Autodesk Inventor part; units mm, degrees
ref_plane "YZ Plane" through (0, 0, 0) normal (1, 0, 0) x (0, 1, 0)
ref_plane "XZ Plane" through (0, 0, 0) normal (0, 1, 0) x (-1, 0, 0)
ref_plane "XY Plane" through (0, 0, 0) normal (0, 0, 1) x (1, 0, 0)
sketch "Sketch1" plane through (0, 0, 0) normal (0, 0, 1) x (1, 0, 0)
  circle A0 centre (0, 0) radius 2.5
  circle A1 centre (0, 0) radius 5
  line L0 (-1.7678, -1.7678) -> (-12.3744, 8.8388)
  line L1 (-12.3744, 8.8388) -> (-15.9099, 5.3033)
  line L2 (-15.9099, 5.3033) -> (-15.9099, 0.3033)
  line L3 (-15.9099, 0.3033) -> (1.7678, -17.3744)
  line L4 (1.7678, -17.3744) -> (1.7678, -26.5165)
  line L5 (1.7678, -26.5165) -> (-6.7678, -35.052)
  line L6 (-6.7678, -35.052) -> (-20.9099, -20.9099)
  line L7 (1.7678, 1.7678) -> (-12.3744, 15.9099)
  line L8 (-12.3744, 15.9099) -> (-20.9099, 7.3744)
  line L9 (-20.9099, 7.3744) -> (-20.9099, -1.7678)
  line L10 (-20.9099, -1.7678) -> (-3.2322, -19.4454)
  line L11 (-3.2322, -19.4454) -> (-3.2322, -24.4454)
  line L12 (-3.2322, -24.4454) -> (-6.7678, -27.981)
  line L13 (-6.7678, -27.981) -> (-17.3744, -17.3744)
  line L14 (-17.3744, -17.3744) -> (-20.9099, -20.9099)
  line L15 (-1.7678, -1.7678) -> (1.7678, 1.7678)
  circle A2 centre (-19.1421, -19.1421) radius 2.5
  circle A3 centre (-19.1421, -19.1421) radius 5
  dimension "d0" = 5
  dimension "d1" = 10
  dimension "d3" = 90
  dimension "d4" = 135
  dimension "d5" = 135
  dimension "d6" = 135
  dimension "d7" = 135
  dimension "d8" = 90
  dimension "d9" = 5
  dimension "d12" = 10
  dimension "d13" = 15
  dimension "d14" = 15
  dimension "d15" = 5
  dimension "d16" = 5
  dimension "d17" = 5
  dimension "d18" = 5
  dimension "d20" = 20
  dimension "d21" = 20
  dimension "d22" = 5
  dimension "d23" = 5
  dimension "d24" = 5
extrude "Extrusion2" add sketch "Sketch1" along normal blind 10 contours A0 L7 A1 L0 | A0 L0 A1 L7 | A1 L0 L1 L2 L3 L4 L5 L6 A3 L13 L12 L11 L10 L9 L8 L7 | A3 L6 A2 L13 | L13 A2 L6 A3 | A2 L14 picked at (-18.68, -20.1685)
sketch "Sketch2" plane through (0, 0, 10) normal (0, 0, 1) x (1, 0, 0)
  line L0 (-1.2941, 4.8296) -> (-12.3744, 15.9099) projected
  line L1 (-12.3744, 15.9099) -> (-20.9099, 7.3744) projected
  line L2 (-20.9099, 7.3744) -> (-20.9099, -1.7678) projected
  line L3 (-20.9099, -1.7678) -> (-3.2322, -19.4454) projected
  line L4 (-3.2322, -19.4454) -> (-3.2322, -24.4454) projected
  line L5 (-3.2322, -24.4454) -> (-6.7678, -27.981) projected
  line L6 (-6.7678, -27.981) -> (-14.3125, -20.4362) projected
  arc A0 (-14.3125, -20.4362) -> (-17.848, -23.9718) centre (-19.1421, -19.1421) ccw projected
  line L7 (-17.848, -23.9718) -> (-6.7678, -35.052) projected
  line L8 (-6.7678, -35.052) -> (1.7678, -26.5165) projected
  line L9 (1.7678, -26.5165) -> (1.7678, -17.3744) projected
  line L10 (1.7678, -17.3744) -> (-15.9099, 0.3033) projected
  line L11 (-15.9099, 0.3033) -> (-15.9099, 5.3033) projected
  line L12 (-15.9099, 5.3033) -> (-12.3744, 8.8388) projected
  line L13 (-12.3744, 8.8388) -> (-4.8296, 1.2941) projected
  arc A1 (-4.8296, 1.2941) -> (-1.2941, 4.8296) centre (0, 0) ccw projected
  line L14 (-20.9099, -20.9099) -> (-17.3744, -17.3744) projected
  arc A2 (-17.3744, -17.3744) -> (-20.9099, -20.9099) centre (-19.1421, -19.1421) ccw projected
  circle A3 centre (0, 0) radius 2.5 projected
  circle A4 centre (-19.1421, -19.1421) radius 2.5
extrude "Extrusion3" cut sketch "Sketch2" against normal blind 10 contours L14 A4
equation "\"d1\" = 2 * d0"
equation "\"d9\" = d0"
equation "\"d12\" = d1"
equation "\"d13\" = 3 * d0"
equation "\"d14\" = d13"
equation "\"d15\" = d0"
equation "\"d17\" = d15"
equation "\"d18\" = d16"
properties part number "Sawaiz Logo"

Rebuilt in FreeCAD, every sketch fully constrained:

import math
import FreeCAD as App
import Part
import Sketcher
Q = App.Units.Quantity

doc = App.newDocument("Part")
body = doc.addObject("PartDesign::Body", "Body")

sketch1 = doc.addObject("Sketcher::SketchObject", "Sketch")
body.addObject(sketch1)
sketch1.AttachmentSupport = (doc.XY_Plane, [""])
sketch1.MapMode = "FlatFace"
sketch1.addGeometry([
    Part.LineSegment(App.Vector(-1.3, 4.8, 0), App.Vector(-12.4, 15.9, 0)),
    Part.LineSegment(App.Vector(-12.4, 15.9, 0), App.Vector(-20.9, 7.4, 0)),
    Part.LineSegment(App.Vector(-20.9, 7.4, 0), App.Vector(-20.9, -1.8, 0)),
    Part.LineSegment(App.Vector(-20.9, -1.8, 0), App.Vector(-3.2, -19.4, 0)),
    Part.LineSegment(App.Vector(-3.2, -19.4, 0), App.Vector(-3.2, -24.4, 0)),
    Part.LineSegment(App.Vector(-3.2, -24.4, 0), App.Vector(-6.8, -28, 0)),
    Part.LineSegment(App.Vector(-6.8, -28, 0), App.Vector(-14.3, -20.4, 0)),
    Part.ArcOfCircle(Part.Circle(App.Vector(-19.1, -19.1, 0), App.Vector(0, 0, 1), 5), math.radians(-15), math.radians(285)),
    Part.LineSegment(App.Vector(-17.8, -24, 0), App.Vector(-6.8, -35.1, 0)),
    Part.LineSegment(App.Vector(-6.8, -35.1, 0), App.Vector(1.8, -26.5, 0)),
    Part.LineSegment(App.Vector(1.8, -26.5, 0), App.Vector(1.8, -17.4, 0)),
    Part.LineSegment(App.Vector(1.8, -17.4, 0), App.Vector(-15.9, 0.3, 0)),
    Part.LineSegment(App.Vector(-15.9, 0.3, 0), App.Vector(-15.9, 5.3, 0)),
    Part.LineSegment(App.Vector(-15.9, 5.3, 0), App.Vector(-12.4, 8.8, 0)),
    Part.LineSegment(App.Vector(-12.4, 8.8, 0), App.Vector(-4.8, 1.3, 0)),
    Part.ArcOfCircle(Part.Circle(App.Vector(0, 0, 0), App.Vector(0, 0, 1), 5), math.radians(165), math.radians(465)),
    Part.Circle(App.Vector(0, 0, 0), App.Vector(0, 0, 1), 2.5),
    Part.ArcOfCircle(Part.Circle(App.Vector(-19.1, -19.1, 0), App.Vector(0, 0, 1), 2.5), math.radians(45), math.radians(225)),
    Part.LineSegment(App.Vector(-20.9, -20.9, 0), App.Vector(-17.4, -17.4, 0)),
], False)
sketch1.addConstraint([
    Sketcher.Constraint("Coincident", 0, 2, 1, 1),
    Sketcher.Constraint("Coincident", 1, 2, 2, 1),
    Sketcher.Constraint("Coincident", 2, 2, 3, 1),
    Sketcher.Constraint("Coincident", 3, 2, 4, 1),
    Sketcher.Constraint("Coincident", 4, 2, 5, 1),
    Sketcher.Constraint("Coincident", 5, 2, 6, 1),
    Sketcher.Constraint("Coincident", 6, 2, 7, 1),
    Sketcher.Constraint("Coincident", 7, 2, 8, 1),
    Sketcher.Constraint("Coincident", 8, 2, 9, 1),
    Sketcher.Constraint("Coincident", 9, 2, 10, 1),
    Sketcher.Constraint("Coincident", 10, 2, 11, 1),
    Sketcher.Constraint("Coincident", 11, 2, 12, 1),
    Sketcher.Constraint("Coincident", 12, 2, 13, 1),
    Sketcher.Constraint("Coincident", 13, 2, 14, 1),
    Sketcher.Constraint("Coincident", 14, 2, 15, 1),
    Sketcher.Constraint("Coincident", 15, 2, 0, 1),
    Sketcher.Constraint("Coincident", 17, 1, 18, 2),
    Sketcher.Constraint("Coincident", 18, 1, 17, 2),
    Sketcher.Constraint("Vertical", 2),
    Sketcher.Constraint("Vertical", 4),
    Sketcher.Constraint("Vertical", 10),
    Sketcher.Constraint("Vertical", 12),
    Sketcher.Constraint("Coincident", 15, 3, -1, 1),
    Sketcher.Constraint("Coincident", 16, 3, -1, 1),
    Sketcher.Constraint("Coincident", 17, 3, 7, 3),
    Sketcher.Constraint("Equal", 7, 15),
    Sketcher.Constraint("Equal", 16, 17),
    Sketcher.Constraint("Perpendicular", 0, 1),
    Sketcher.Constraint("Perpendicular", 1, 3),
    Sketcher.Constraint("Perpendicular", 3, 5),
    Sketcher.Constraint("Perpendicular", 5, 6),
    Sketcher.Constraint("Parallel", 6, 8),
    Sketcher.Constraint("Perpendicular", 8, 9),
    Sketcher.Constraint("Perpendicular", 9, 11),
    Sketcher.Constraint("Perpendicular", 11, 13),
    Sketcher.Constraint("Perpendicular", 13, 14),
    Sketcher.Constraint("Perpendicular", 14, 18),
    Sketcher.Constraint("Horizontal", 10, 2, 17, 1),
    Sketcher.Constraint("Vertical", 5, 2, 8, 2),
    Sketcher.Constraint("Vertical", 0, 2, 13, 2),
    Sketcher.Constraint("Vertical", 2, 2, 18, 1),
    Sketcher.Constraint("Equal", 2, 10),
    Sketcher.Constraint("Equal", 4, 12),
    Sketcher.Constraint("Equal", 0, 8),
    Sketcher.Constraint("Equal", 1, 9),
    Sketcher.Constraint("Equal", 3, 11),
    Sketcher.Constraint("Equal", 6, 14),
    Sketcher.Constraint("Equal", 13, 18),
    Sketcher.Constraint("Diameter", 16, Q("5 mm")),
    Sketcher.Constraint("Radius", 7, Q("5 mm")),
    Sketcher.Constraint("DistanceY", 4, 2, 4, 1, Q("5 mm")),
    Sketcher.Constraint("Angle", 0, Q("135.0002 deg")),
    Sketcher.Constraint("DistanceX", 4, 2, 9, 2, Q("5 mm")),
    Sketcher.Constraint("Distance", 3, Q("25 mm")),
    Sketcher.Constraint("Distance", 0, Q("15.67 mm")),
    Sketcher.Constraint("Distance", 14, Q("10.67 mm")),
    Sketcher.Constraint("DistanceY", 10, 1, 10, 2, Q("9.142 mm")),
])
pad1 = doc.addObject("PartDesign::Pad", "Pad")
body.addObject(pad1)
pad1.Profile = sketch1
pad1.Length = 10

sketch2 = doc.addObject("Sketcher::SketchObject", "Sketch001")
body.addObject(sketch2)
sketch2.AttachmentSupport = (doc.XY_Plane, [""])
sketch2.MapMode = "FlatFace"
sketch2.AttachmentOffset = App.Placement(App.Vector(0, 0, 10), App.Rotation())
sketch2.addGeometry([
    Part.LineSegment(App.Vector(-17.4, -17.4, 0), App.Vector(-20.9, -20.9, 0)),
    Part.ArcOfCircle(Part.Circle(App.Vector(-19.1, -19.1, 0), App.Vector(0, 0, 1), 2.5), math.radians(-135), math.radians(45)),
], False)
sketch2.addConstraint([
    Sketcher.Constraint("Coincident", 0, 1, 1, 2),
    Sketcher.Constraint("Coincident", 1, 1, 0, 2),
    Sketcher.Constraint("Radius", 1, Q("2.5 mm")),
    Sketcher.Constraint("Angle", 0, Q("-135 deg")),
    Sketcher.Constraint("DistanceX", 1, 3, -1, 1, Q("19.142 mm")),
    Sketcher.Constraint("DistanceY", 1, 3, -1, 1, Q("19.142 mm")),
    Sketcher.Constraint("DistanceX", 0, 1, -1, 1, Q("17.3744 mm")),
])
pocket1 = doc.addObject("PartDesign::Pocket", "Pocket")
body.addObject(pocket1)
pocket1.Profile = sketch2
pocket1.Length = 10

doc.recompute()
